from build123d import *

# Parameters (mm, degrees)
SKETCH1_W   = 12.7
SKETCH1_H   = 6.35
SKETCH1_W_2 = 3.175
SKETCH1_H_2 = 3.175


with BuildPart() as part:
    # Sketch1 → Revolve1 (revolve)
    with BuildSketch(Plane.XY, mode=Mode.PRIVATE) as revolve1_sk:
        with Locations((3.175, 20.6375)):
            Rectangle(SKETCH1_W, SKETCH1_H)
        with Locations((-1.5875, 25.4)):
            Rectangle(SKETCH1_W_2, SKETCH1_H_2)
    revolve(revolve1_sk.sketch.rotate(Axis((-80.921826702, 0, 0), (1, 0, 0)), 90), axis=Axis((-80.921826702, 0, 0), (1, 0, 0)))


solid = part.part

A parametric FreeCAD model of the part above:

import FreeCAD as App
import Part
import Sketcher
from FreeCAD import Vector
Q = App.Units.Quantity


def add_polygon(sketch, points):
    """Adds a closed chain of lines whose ends are joined by coincident constraints."""
    first, n = sketch.GeometryCount, len(points)
    for a, b in zip(points, points[1:] + points[:1]):
        sketch.addGeometry(Part.LineSegment(App.Vector(*a, 0), App.Vector(*b, 0)), False)
    for i in range(n):
        sketch.addConstraint(Sketcher.Constraint("Coincident", first + i, 2, first + (i + 1) % n, 1))

doc = App.newDocument("Part")
body = doc.addObject("PartDesign::Body", "Body")

# Sketch on XY plane
sketch1 = body.newObject("Sketcher::SketchObject", "Sketch")
sketch1.AttachmentSupport = (doc.getObject("XY_Plane"), [""])
sketch1.MapMode = "FlatFace"
add_polygon(sketch1, [(-3.2, 17.5), (9.5, 17.5), (9.5, 23.8), (0, 23.8), (0, 27), (-3.2, 27)])  # lines 0-5
sketch1.addConstraint(Sketcher.Constraint("Horizontal", 0))
sketch1.addConstraint(Sketcher.Constraint("Vertical", 1))
sketch1.addConstraint(Sketcher.Constraint("Horizontal", 2))
sketch1.addConstraint(Sketcher.Constraint("Vertical", 3))
sketch1.addConstraint(Sketcher.Constraint("Horizontal", 4))
sketch1.addConstraint(Sketcher.Constraint("Vertical", 5))
sketch1.addConstraint(Sketcher.Constraint("PointOnObject", 2, 2, -2))
sketch1.addConstraint(Sketcher.Constraint("Equal", 4, 3))
sketch1.addConstraint(Sketcher.Constraint("Equal", 2, 5))
sketch1.addConstraint(Sketcher.Constraint("DistanceX", 0, 1, 0, 2, Q("0.5 in")))
sketch1.addConstraint(Sketcher.Constraint("DistanceY", 1, 1, 1, 2, Q("0.25 in")))
sketch1.addConstraint(Sketcher.Constraint("DistanceY", -1, 1, 0, 2, Q("0.6875 in")))
revolution = body.newObject("PartDesign::Revolution", "Revolution")
revolution.Profile = sketch1
revolution.ReferenceAxis = (sketch1, ["H_Axis"])
revolution.Angle = 360

doc.recompute()
